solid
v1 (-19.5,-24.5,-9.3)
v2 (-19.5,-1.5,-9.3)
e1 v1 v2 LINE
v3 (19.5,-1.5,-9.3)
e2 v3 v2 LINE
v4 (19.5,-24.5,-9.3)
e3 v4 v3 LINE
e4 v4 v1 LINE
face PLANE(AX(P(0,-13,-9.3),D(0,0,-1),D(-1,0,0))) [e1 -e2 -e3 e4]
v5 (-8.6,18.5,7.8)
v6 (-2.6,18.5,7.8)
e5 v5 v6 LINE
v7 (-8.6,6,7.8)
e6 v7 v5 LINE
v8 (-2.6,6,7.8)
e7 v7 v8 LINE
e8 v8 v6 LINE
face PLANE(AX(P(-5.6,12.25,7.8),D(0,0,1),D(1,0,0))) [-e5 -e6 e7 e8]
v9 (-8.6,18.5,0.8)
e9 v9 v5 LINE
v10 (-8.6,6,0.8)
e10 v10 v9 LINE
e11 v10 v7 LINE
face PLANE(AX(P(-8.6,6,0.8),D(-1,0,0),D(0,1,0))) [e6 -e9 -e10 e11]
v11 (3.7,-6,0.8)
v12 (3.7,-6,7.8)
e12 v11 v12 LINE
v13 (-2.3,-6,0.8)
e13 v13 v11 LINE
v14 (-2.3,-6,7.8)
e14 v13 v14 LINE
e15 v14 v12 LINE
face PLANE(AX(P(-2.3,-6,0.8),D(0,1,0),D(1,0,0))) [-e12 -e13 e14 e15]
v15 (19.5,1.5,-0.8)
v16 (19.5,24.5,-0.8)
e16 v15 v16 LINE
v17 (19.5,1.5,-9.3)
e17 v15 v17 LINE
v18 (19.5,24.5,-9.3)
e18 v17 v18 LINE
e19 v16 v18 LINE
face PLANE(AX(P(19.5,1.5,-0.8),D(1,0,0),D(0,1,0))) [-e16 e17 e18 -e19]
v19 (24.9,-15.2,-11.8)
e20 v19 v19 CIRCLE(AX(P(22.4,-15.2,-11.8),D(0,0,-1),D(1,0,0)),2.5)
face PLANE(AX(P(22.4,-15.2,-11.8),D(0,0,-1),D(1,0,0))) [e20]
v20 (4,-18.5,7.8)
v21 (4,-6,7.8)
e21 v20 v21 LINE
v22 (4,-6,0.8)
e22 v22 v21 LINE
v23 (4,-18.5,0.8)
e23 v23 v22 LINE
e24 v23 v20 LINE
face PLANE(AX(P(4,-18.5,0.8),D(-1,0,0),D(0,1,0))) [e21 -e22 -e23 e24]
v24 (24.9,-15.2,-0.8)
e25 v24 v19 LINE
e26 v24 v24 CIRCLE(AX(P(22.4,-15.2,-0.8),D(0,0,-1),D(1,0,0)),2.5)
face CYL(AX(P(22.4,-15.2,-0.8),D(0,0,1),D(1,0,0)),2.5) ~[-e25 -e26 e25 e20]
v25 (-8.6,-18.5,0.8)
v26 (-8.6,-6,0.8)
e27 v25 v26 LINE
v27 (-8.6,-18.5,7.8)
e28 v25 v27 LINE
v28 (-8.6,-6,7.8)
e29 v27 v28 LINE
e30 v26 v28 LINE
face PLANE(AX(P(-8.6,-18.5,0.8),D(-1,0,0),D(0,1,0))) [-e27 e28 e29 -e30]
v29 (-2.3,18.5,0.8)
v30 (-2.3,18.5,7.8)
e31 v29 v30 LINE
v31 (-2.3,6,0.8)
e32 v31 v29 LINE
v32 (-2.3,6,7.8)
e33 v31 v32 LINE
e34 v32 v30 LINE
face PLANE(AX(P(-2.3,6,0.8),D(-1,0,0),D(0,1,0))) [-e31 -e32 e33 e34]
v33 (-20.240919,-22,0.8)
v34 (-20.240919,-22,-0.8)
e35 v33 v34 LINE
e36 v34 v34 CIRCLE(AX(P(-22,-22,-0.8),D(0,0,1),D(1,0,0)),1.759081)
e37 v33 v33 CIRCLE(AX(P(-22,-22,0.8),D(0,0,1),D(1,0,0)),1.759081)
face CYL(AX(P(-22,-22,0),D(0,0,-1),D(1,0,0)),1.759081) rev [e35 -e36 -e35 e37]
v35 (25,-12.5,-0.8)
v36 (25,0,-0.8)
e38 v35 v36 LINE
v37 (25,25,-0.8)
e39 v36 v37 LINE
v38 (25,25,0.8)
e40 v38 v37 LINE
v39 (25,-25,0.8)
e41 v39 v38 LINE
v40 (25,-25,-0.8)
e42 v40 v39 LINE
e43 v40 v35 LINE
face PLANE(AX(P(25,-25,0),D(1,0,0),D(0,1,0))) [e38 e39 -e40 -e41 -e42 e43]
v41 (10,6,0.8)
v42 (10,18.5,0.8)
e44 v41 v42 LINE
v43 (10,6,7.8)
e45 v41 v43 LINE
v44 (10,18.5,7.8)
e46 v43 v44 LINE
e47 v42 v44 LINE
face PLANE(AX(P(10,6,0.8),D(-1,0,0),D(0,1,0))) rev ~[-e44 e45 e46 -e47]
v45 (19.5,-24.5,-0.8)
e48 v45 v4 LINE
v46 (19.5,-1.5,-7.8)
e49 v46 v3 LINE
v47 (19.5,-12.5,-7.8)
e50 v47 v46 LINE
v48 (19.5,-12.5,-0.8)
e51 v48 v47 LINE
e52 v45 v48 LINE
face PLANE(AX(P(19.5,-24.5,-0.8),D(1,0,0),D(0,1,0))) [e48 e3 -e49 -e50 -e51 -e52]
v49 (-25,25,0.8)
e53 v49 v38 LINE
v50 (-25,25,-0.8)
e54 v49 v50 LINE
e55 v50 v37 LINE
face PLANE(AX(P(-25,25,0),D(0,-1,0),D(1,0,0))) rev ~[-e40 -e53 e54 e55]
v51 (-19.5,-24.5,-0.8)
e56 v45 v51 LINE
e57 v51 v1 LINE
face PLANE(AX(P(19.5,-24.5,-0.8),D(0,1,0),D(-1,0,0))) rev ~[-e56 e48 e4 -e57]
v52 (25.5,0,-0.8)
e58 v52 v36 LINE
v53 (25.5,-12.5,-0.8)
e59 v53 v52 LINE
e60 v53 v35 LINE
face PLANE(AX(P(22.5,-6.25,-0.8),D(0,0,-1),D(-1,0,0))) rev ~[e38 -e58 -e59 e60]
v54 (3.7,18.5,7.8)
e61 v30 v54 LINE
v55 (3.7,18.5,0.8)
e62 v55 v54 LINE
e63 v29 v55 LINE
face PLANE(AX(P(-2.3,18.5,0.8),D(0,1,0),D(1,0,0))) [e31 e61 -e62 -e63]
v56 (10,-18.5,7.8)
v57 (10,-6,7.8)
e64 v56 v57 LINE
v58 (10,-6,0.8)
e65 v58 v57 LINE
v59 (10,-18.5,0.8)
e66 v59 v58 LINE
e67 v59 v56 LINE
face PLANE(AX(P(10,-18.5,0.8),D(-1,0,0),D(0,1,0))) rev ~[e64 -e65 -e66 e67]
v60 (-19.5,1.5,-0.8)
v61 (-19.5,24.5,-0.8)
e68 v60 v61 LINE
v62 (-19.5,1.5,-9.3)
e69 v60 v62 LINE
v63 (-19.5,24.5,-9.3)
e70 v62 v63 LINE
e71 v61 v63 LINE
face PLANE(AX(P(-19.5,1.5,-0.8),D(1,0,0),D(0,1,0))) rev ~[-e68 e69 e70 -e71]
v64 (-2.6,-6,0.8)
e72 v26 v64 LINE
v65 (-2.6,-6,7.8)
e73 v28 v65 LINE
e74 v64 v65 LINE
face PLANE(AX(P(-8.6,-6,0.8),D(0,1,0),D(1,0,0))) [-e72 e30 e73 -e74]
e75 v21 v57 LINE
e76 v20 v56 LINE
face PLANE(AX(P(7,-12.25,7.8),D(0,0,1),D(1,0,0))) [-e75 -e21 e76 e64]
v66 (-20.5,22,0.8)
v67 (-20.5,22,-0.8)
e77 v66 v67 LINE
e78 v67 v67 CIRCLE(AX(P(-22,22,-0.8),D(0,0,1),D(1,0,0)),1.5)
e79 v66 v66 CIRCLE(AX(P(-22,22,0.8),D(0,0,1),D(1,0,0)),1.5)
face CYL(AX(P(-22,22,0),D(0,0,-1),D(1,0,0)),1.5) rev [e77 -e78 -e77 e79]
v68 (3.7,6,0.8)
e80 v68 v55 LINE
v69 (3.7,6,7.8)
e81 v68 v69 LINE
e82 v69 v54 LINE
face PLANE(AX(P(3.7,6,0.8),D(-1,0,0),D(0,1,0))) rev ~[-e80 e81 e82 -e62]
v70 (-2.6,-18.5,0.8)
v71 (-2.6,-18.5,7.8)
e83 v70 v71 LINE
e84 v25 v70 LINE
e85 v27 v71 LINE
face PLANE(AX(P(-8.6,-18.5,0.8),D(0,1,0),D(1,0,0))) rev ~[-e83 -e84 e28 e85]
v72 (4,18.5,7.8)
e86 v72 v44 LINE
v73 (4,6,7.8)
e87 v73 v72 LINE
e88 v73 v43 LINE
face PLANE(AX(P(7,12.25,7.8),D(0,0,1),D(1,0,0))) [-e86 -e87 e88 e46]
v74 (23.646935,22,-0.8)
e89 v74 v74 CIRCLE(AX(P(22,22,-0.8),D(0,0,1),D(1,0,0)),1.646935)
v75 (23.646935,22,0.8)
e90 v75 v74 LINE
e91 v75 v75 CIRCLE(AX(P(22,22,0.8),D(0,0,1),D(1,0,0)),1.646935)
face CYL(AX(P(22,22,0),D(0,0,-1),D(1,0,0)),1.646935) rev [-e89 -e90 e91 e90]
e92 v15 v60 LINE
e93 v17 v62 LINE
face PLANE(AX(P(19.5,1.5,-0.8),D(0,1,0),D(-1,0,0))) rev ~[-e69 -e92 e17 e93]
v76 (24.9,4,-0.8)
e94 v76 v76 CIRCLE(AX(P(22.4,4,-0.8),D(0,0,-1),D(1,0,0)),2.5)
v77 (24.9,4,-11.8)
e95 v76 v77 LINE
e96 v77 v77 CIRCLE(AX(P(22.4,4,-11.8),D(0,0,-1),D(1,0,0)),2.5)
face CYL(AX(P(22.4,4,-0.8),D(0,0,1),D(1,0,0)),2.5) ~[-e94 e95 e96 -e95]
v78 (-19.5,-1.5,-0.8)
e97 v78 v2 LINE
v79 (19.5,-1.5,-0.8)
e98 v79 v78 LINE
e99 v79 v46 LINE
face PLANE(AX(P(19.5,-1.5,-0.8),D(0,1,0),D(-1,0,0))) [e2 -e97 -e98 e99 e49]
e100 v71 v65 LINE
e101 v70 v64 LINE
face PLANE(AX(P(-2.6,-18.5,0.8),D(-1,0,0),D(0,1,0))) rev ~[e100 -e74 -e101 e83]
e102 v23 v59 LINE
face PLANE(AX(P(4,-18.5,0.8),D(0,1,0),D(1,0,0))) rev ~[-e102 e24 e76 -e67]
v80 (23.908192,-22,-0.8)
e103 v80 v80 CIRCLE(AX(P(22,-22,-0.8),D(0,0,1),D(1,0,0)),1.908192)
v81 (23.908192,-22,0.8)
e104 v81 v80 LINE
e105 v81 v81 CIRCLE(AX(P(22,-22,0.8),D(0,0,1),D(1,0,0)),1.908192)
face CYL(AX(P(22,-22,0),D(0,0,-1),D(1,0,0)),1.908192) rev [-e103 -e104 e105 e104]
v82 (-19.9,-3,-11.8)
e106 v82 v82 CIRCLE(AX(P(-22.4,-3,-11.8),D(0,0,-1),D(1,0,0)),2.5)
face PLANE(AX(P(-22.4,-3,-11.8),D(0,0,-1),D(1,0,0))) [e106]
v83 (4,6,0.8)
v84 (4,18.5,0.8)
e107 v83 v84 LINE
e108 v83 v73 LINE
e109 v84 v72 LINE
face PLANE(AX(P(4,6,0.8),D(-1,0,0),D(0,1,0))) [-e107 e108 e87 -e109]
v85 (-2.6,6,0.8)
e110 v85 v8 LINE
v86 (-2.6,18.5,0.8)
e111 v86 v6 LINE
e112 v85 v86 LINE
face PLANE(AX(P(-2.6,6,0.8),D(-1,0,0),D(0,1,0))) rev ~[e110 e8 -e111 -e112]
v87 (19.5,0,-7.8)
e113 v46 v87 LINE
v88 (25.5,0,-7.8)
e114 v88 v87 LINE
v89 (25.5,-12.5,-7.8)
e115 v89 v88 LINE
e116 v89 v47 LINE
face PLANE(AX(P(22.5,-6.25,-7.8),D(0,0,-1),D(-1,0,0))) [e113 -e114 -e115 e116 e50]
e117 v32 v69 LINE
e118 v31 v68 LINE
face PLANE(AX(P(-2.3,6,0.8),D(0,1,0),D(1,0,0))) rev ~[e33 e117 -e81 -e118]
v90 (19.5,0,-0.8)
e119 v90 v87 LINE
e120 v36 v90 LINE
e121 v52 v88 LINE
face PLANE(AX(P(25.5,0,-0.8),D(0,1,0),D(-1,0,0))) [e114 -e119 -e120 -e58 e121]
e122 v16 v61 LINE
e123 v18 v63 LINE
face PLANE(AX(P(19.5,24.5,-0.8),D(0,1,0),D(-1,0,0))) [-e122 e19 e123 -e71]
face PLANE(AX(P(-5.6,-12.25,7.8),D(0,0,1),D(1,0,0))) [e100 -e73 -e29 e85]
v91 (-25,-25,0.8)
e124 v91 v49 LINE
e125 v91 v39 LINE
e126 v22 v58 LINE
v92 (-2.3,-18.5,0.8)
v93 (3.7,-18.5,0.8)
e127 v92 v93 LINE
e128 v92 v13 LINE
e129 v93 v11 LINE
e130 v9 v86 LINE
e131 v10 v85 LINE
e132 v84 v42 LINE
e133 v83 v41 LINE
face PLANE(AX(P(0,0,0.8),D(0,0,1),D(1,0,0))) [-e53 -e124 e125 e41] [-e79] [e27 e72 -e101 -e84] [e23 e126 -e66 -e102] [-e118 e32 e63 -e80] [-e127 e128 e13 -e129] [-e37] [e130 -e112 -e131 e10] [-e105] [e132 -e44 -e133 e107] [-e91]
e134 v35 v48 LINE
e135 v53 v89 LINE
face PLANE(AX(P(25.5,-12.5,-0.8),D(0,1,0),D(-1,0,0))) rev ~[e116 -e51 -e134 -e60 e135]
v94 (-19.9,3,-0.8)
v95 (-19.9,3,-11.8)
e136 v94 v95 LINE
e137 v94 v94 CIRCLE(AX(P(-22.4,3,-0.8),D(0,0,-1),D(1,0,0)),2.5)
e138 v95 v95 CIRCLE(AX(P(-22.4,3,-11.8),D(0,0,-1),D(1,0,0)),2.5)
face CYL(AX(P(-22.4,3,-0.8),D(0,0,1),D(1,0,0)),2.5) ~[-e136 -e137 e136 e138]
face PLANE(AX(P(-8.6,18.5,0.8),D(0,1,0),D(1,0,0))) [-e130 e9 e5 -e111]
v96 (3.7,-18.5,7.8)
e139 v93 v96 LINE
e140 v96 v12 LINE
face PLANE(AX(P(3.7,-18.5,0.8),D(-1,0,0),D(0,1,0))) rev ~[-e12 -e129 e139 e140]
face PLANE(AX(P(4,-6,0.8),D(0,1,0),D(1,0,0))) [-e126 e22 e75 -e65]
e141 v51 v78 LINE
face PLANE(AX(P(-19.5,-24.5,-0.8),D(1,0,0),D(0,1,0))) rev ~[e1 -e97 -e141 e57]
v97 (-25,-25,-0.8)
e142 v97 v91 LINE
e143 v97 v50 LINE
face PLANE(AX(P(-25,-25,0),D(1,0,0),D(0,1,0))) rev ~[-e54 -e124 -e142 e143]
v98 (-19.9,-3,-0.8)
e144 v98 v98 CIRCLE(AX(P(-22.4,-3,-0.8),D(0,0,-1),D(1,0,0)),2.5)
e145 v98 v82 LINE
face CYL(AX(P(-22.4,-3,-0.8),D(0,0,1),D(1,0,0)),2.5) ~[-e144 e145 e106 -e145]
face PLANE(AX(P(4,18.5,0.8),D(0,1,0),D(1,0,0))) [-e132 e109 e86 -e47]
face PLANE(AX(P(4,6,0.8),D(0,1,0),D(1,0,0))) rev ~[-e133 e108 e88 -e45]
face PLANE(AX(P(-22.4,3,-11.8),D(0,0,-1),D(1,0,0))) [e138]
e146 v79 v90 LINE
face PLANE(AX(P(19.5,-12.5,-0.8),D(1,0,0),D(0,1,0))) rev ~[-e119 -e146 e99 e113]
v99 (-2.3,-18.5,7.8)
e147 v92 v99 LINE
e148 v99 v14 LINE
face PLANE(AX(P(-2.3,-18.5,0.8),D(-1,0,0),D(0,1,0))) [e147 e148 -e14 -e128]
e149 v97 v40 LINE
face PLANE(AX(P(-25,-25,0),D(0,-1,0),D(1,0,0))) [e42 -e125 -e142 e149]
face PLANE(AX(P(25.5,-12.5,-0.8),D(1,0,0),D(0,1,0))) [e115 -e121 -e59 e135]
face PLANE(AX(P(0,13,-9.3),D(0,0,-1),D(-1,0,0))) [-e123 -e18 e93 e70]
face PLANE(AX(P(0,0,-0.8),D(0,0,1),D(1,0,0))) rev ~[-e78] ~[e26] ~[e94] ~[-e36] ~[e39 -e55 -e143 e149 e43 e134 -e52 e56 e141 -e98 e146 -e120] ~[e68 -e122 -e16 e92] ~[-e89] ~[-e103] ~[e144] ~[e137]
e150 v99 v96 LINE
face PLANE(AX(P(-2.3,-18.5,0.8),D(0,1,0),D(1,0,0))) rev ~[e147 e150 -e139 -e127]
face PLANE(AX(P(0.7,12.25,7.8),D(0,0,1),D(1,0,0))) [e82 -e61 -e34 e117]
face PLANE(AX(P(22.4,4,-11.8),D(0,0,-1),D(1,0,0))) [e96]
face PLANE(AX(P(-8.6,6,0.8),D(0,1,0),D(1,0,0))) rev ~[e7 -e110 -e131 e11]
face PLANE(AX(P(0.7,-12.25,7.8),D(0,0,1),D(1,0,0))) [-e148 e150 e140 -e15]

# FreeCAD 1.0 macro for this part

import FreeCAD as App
import Part
import Sketcher
from FreeCAD import Vector
Q = App.Units.Quantity

doc = App.newDocument("Part")
body = doc.addObject("PartDesign::Body", "Body")

sketch1 = body.newObject("Sketcher::SketchObject", "Sketch")
sketch1.AttachmentSupport = (doc.getObject("XY_Plane"), [""])
sketch1.MapMode = "FlatFace"
sketch1.addGeometry([
    Part.LineSegment(Vector(-25, 25, 0), Vector(-25, -25, 0)),
    Part.LineSegment(Vector(-25, -25, 0), Vector(25, -25, 0)),
    Part.LineSegment(Vector(25, -25, 0), Vector(25, 25, 0)),
    Part.LineSegment(Vector(25, 25, 0), Vector(-25, 25, 0)),
    Part.Circle(Vector(-22, -22, 0), Vector(0, 0, 1), 1.8),
    Part.Circle(Vector(22, -22, 0), Vector(0, 0, 1), 1.9),
    Part.Circle(Vector(-22, 22, 0), Vector(0, 0, 1), 1.5),
    Part.Circle(Vector(22, 22, 0), Vector(0, 0, 1), 1.6),
], False)
sketch1.addConstraint([
    Sketcher.Constraint("Coincident", 0, 2, 1, 1),
    Sketcher.Constraint("Coincident", 1, 2, 2, 1),
    Sketcher.Constraint("Coincident", 2, 2, 3, 1),
    Sketcher.Constraint("Coincident", 3, 2, 0, 1),
    Sketcher.Constraint("Vertical", 0),
    Sketcher.Constraint("Horizontal", 1),
    Sketcher.Constraint("Vertical", 2),
    Sketcher.Constraint("Horizontal", 3),
    Sketcher.Constraint("Symmetric", 5, 3, 6, 3, -1, 1),
    Sketcher.Constraint("Symmetric", 4, 3, 7, 3, -1, 1),
    Sketcher.Constraint("Symmetric", 0, 2, 2, 2, -1, 1),
    Sketcher.Constraint("Symmetric", 4, 3, 5, 3, -2),
    Sketcher.Constraint("Equal", 3, 0),
    Sketcher.Constraint("Diameter", 6, Q("3 mm")),
    Sketcher.Constraint("DistanceX", 1, 1, 1, 2, Q("50 mm")),
    Sketcher.Constraint("DistanceX", 4, 3, -1, 1, Q("22 mm")),
    Sketcher.Constraint("DistanceY", 4, 3, -1, 1, Q("22 mm")),
    Sketcher.Constraint("Diameter", 4, Q("3.518161 mm")),
    Sketcher.Constraint("Diameter", 7, Q("3.29387 mm")),
    Sketcher.Constraint("Diameter", 5, Q("3.816385 mm")),
])
pad1 = body.newObject("PartDesign::Pad", "Pad")
pad1.Profile = sketch1
pad1.Length = 1.6
pad1.Midplane = True

sketch2 = body.newObject("Sketcher::SketchObject", "Sketch001")
sketch2.AttachmentSupport = (doc.getObject("XY_Plane"), [""])
sketch2.MapMode = "FlatFace"
sketch2.AttachmentOffset = App.Placement(Vector(0, 0, 0.8), App.Rotation())
sketch2.addGeometry([
    Part.LineSegment(Vector(4, 18, 0), Vector(4, 6, 0)),
    Part.LineSegment(Vector(4, 6, 0), Vector(10, 6, 0)),
    Part.LineSegment(Vector(10, 6, 0), Vector(10, 18, 0)),
    Part.LineSegment(Vector(10, 18, 0), Vector(4, 18, 0)),
    Part.LineSegment(Vector(4, -6, 0), Vector(4, -18, 0)),
    Part.LineSegment(Vector(4, -18, 0), Vector(10, -18, 0)),
    Part.LineSegment(Vector(10, -18, 0), Vector(10, -6, 0)),
    Part.LineSegment(Vector(10, -6, 0), Vector(4, -6, 0)),
    Part.LineSegment(Vector(-2, 18, 0), Vector(-2, 6, 0)),
    Part.LineSegment(Vector(-2, 6, 0), Vector(4, 6, 0)),
    Part.LineSegment(Vector(4, 6, 0), Vector(4, 18, 0)),
    Part.LineSegment(Vector(4, 18, 0), Vector(-2, 18, 0)),
    Part.LineSegment(Vector(-2, -6, 0), Vector(-2, -18, 0)),
    Part.LineSegment(Vector(-2, -18, 0), Vector(4, -18, 0)),
    Part.LineSegment(Vector(4, -18, 0), Vector(4, -6, 0)),
    Part.LineSegment(Vector(4, -6, 0), Vector(-2, -6, 0)),
    Part.LineSegment(Vector(-9, 18, 0), Vector(-9, 6, 0)),
    Part.LineSegment(Vector(-9, 6, 0), Vector(-3, 6, 0)),
    Part.LineSegment(Vector(-3, 6, 0), Vector(-3, 18, 0)),
    Part.LineSegment(Vector(-3, 18, 0), Vector(-9, 18, 0)),
    Part.LineSegment(Vector(-9, -6, 0), Vector(-9, -18, 0)),
    Part.LineSegment(Vector(-9, -18, 0), Vector(-3, -18, 0)),
    Part.LineSegment(Vector(-3, -18, 0), Vector(-3, -6, 0)),
    Part.LineSegment(Vector(-3, -6, 0), Vector(-9, -6, 0)),
], False)
sketch2.addConstraint([
    Sketcher.Constraint("Coincident", 0, 2, 1, 1),
    Sketcher.Constraint("Coincident", 1, 2, 2, 1),
    Sketcher.Constraint("Coincident", 2, 2, 3, 1),
    Sketcher.Constraint("Coincident", 3, 2, 0, 1),
    Sketcher.Constraint("Coincident", 4, 2, 5, 1),
    Sketcher.Constraint("Coincident", 5, 2, 6, 1),
    Sketcher.Constraint("Coincident", 6, 2, 7, 1),
    Sketcher.Constraint("Coincident", 7, 2, 4, 1),
    Sketcher.Constraint("Coincident", 8, 2, 9, 1),
    Sketcher.Constraint("Coincident", 9, 2, 10, 1),
    Sketcher.Constraint("Coincident", 10, 2, 11, 1),
    Sketcher.Constraint("Coincident", 11, 2, 8, 1),
    Sketcher.Constraint("Coincident", 12, 2, 13, 1),
    Sketcher.Constraint("Coincident", 13, 2, 14, 1),
    Sketcher.Constraint("Coincident", 14, 2, 15, 1),
    Sketcher.Constraint("Coincident", 15, 2, 12, 1),
    Sketcher.Constraint("Coincident", 16, 2, 17, 1),
    Sketcher.Constraint("Coincident", 17, 2, 18, 1),
    Sketcher.Constraint("Coincident", 18, 2, 19, 1),
    Sketcher.Constraint("Coincident", 19, 2, 16, 1),
    Sketcher.Constraint("Coincident", 20, 2, 21, 1),
    Sketcher.Constraint("Coincident", 21, 2, 22, 1),
    Sketcher.Constraint("Coincident", 22, 2, 23, 1),
    Sketcher.Constraint("Coincident", 23, 2, 20, 1),
    Sketcher.Constraint("Vertical", 0),
    Sketcher.Constraint("Horizontal", 1),
    Sketcher.Constraint("Vertical", 2),
    Sketcher.Constraint("Horizontal", 3),
    Sketcher.Constraint("Vertical", 4),
    Sketcher.Constraint("Horizontal", 5),
    Sketcher.Constraint("Vertical", 6),
    Sketcher.Constraint("Horizontal", 7),
    Sketcher.Constraint("Vertical", 8),
    Sketcher.Constraint("Horizontal", 9),
    Sketcher.Constraint("Vertical", 10),
    Sketcher.Constraint("Horizontal", 11),
    Sketcher.Constraint("Vertical", 12),
    Sketcher.Constraint("Horizontal", 13),
    Sketcher.Constraint("Vertical", 14),
    Sketcher.Constraint("Horizontal", 15),
    Sketcher.Constraint("Vertical", 16),
    Sketcher.Constraint("Horizontal", 17),
    Sketcher.Constraint("Vertical", 18),
    Sketcher.Constraint("Horizontal", 19),
    Sketcher.Constraint("Vertical", 20),
    Sketcher.Constraint("Horizontal", 21),
    Sketcher.Constraint("Vertical", 22),
    Sketcher.Constraint("Horizontal", 23),
    Sketcher.Constraint("Symmetric", 3, 2, 4, 2, -1),
    Sketcher.Constraint("Symmetric", 1, 2, 6, 2, -1),
    Sketcher.Constraint("Symmetric", 11, 2, 12, 2, -1),
    Sketcher.Constraint("Symmetric", 9, 2, 14, 2, -1),
    Sketcher.Constraint("Symmetric", 19, 2, 20, 2, -1),
    Sketcher.Constraint("Symmetric", 17, 2, 22, 2, -1),
    Sketcher.Constraint("Horizontal", 1, 2, 8, 2),
    Sketcher.Constraint("Horizontal", 3, 2, 10, 2),
    Sketcher.Constraint("Horizontal", 9, 2, 16, 2),
    Sketcher.Constraint("Horizontal", 11, 2, 18, 2),
    Sketcher.Constraint("Equal", 7, 9),
    Sketcher.Constraint("Equal", 15, 17),
    Sketcher.Constraint("DistanceX", 1, 1, 1, 2, Q("6 mm")),
    Sketcher.Constraint("DistanceY", 0, 2, 0, 1, Q("12.5 mm")),
    Sketcher.Constraint("DistanceX", -1, 1, 0, 2, Q("4 mm")),
    Sketcher.Constraint("DistanceY", -1, 1, 0, 2, Q("6 mm")),
    Sketcher.Constraint("DistanceX", 8, 2, -1, 1, Q("2.3 mm")),
    Sketcher.Constraint("DistanceX", 16, 2, -1, 1, Q("8.6 mm")),
])
pad2 = body.newObject("PartDesign::Pad", "Pad001")
pad2.Profile = sketch2
pad2.Length = 7

sketch3 = body.newObject("Sketcher::SketchObject", "Sketch002")
sketch3.AttachmentSupport = (doc.getObject("XY_Plane"), [""])
sketch3.MapMode = "FlatFace"
sketch3.AttachmentOffset = App.Placement(Vector(0, 0, -0.8), App.Rotation())
sketch3.addGeometry([
    Part.LineSegment(Vector(26, 0, 0), Vector(26, -12, 0)),
    Part.LineSegment(Vector(26, -12, 0), Vector(20, -12, 0)),
    Part.LineSegment(Vector(20, -12, 0), Vector(20, 0, 0)),
    Part.LineSegment(Vector(20, 0, 0), Vector(26, 0, 0)),
], False)
sketch3.addConstraint([
    Sketcher.Constraint("Coincident", 0, 2, 1, 1),
    Sketcher.Constraint("Coincident", 1, 2, 2, 1),
    Sketcher.Constraint("Coincident", 2, 2, 3, 1),
    Sketcher.Constraint("Coincident", 3, 2, 0, 1),
    Sketcher.Constraint("Vertical", 0),
    Sketcher.Constraint("Horizontal", 1),
    Sketcher.Constraint("Vertical", 2),
    Sketcher.Constraint("Horizontal", 3),
    Sketcher.Constraint("PointOnObject", 2, 2, -1),
    Sketcher.Constraint("DistanceX", 1, 2, 1, 1, Q("6 mm")),
    Sketcher.Constraint("DistanceY", 0, 2, 0, 1, Q("12.5 mm")),
    Sketcher.Constraint("DistanceX", -1, 1, 0, 2, Q("25.5 mm")),
])
pad3 = body.newObject("PartDesign::Pad", "Pad002")
pad3.Profile = sketch3
pad3.Length = 7
pad3.Reversed = True

sketch4 = body.newObject("Sketcher::SketchObject", "Sketch003")
sketch4.AttachmentSupport = (doc.getObject("XY_Plane"), [""])
sketch4.MapMode = "FlatFace"
sketch4.AttachmentOffset = App.Placement(Vector(0, 0, -0.8), App.Rotation())
sketch4.addGeometry([
    Part.LineSegment(Vector(20, -2, 0), Vector(20, -24, 0)),
    Part.LineSegment(Vector(20, -24, 0), Vector(-20, -24, 0)),
    Part.LineSegment(Vector(-20, -24, 0), Vector(-20, -2, 0)),
    Part.LineSegment(Vector(-20, -2, 0), Vector(20, -2, 0)),
    Part.LineSegment(Vector(20, 24, 0), Vector(20, 2, 0)),
    Part.LineSegment(Vector(20, 2, 0), Vector(-20, 2, 0)),
    Part.LineSegment(Vector(-20, 2, 0), Vector(-20, 24, 0)),
    Part.LineSegment(Vector(-20, 24, 0), Vector(20, 24, 0)),
], False)
sketch4.addConstraint([
    Sketcher.Constraint("Coincident", 0, 2, 1, 1),
    Sketcher.Constraint("Coincident", 1, 2, 2, 1),
    Sketcher.Constraint("Coincident", 2, 2, 3, 1),
    Sketcher.Constraint("Coincident", 3, 2, 0, 1),
    Sketcher.Constraint("Coincident", 4, 2, 5, 1),
    Sketcher.Constraint("Coincident", 5, 2, 6, 1),
    Sketcher.Constraint("Coincident", 6, 2, 7, 1),
    Sketcher.Constraint("Coincident", 7, 2, 4, 1),
    Sketcher.Constraint("Vertical", 0),
    Sketcher.Constraint("Horizontal", 1),
    Sketcher.Constraint("Vertical", 2),
    Sketcher.Constraint("Horizontal", 3),
    Sketcher.Constraint("Vertical", 4),
    Sketcher.Constraint("Horizontal", 5),
    Sketcher.Constraint("Vertical", 6),
    Sketcher.Constraint("Horizontal", 7),
    Sketcher.Constraint("Symmetric", 2, 2, 4, 2, -1, 1),
    Sketcher.Constraint("Symmetric", 0, 2, 6, 2, -1, 1),
    Sketcher.Constraint("Vertical", 3, 2, 4, 2),
    Sketcher.Constraint("DistanceX", 1, 2, 1, 1, Q("39 mm")),
    Sketcher.Constraint("DistanceY", 0, 2, 0, 1, Q("23 mm")),
    Sketcher.Constraint("DistanceY", 3, 2, 4, 2, Q("3 mm")),
])
pad4 = body.newObject("PartDesign::Pad", "Pad003")
pad4.Profile = sketch4
pad4.Length = 8.5
pad4.Reversed = True

sketch5 = body.newObject("Sketcher::SketchObject", "Sketch004")
sketch5.AttachmentSupport = (doc.getObject("XY_Plane"), [""])
sketch5.MapMode = "FlatFace"
sketch5.AttachmentOffset = App.Placement(Vector(0, 0, -0.8), App.Rotation())
sketch5.addGeometry([
    Part.Circle(Vector(-22.4, -3, 0), Vector(0, 0, 1), 2.5),
    Part.Circle(Vector(-22.4, 3, 0), Vector(0, 0, 1), 2.5),
    Part.Circle(Vector(22.4, -15.2, 0), Vector(0, 0, 1), 2.5),
    Part.Circle(Vector(22.4, 4, 0), Vector(0, 0, 1), 2.5),
], False)
sketch5.addConstraint([
    Sketcher.Constraint("Equal", 0, 1),
    Sketcher.Constraint("Equal", 1, 2),
    Sketcher.Constraint("Equal", 2, 3),
    Sketcher.Constraint("Symmetric", 0, 3, 1, 3, -1),
    Sketcher.Constraint("Vertical", 2, 3, 3, 3),
    Sketcher.Constraint("Diameter", 0, Q("5 mm")),
    Sketcher.Constraint("DistanceY", 0, 3, -1, 1, Q("3 mm")),
    Sketcher.Constraint("DistanceY", -1, 1, 3, 3, Q("4 mm")),
    Sketcher.Constraint("DistanceX", 0, 3, -1, 1, Q("22.4 mm")),
    Sketcher.Constraint("DistanceX", -1, 1, 2, 3, Q("22.4 mm")),
    Sketcher.Constraint("DistanceY", 2, 3, -1, 1, Q("15.2 mm")),
])
pad5 = body.newObject("PartDesign::Pad", "Pad004")
pad5.Profile = sketch5
pad5.Length = 11
pad5.Reversed = True

doc.recompute()
